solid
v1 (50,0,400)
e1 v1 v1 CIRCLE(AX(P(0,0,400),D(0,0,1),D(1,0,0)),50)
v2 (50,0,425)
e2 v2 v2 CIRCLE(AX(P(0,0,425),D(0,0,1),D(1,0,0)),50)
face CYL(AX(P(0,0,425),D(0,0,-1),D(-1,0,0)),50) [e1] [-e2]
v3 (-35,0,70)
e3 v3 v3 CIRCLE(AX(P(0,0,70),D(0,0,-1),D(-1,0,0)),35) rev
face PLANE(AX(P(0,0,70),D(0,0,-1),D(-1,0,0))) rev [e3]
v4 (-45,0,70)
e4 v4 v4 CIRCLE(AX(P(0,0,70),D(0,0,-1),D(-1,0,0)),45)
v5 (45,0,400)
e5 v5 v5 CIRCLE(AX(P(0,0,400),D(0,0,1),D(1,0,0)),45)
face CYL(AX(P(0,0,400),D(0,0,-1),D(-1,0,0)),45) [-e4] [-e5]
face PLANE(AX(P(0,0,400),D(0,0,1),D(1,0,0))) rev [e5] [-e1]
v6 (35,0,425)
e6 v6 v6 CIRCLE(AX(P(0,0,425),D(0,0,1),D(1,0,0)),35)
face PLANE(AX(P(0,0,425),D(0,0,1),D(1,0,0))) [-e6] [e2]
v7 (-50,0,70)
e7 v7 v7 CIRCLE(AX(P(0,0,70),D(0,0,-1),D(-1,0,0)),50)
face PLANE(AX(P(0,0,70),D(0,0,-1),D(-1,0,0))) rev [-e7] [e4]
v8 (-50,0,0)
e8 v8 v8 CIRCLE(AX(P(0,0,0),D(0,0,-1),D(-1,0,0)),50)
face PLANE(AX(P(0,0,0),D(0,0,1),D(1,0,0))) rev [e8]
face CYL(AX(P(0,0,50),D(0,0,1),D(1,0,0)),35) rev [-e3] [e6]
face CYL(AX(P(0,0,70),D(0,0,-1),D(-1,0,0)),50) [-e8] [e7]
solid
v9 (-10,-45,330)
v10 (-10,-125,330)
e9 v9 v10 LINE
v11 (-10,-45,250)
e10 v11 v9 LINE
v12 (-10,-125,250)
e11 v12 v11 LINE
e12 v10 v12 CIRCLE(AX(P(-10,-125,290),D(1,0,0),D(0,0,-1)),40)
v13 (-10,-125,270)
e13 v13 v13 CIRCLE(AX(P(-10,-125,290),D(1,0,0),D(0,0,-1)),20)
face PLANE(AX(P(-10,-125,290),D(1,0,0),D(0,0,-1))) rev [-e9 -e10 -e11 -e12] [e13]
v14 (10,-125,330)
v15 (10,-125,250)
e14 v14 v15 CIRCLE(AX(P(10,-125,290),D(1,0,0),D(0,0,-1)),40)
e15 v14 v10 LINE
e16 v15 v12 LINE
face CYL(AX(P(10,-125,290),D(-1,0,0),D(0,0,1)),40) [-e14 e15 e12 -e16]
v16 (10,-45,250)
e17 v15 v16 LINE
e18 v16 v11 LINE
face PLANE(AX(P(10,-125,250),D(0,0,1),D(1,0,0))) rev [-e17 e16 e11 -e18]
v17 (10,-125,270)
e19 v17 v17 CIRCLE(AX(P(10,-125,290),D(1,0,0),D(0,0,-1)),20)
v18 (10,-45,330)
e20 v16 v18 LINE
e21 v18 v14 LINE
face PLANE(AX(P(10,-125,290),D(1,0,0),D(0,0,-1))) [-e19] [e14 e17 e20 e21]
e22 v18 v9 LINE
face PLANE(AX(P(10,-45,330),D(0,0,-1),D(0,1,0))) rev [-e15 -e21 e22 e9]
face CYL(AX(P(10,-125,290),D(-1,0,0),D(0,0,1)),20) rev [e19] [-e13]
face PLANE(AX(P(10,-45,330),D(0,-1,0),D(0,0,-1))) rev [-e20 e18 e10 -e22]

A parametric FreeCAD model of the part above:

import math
import FreeCAD as App
import Part
import Sketcher

doc = App.newDocument("Part")
body = doc.addObject("PartDesign::Body", "Body")

# Sketch on XY plane
sketch1 = body.newObject("Sketcher::SketchObject", "Sketch")
sketch1.AttachmentSupport = (doc.getObject("XY_Plane"), [""])
sketch1.MapMode = "FlatFace"
sketch1.addGeometry(Part.Circle(App.Vector(0, 0, 0), App.Vector(0, 0, 1), 45), False)
sketch1.addConstraint(Sketcher.Constraint("Coincident", 0, 3, -1, 1))
sketch1.addConstraint(Sketcher.Constraint("Diameter", 0, 90.0))
pad1 = body.newObject("PartDesign::Pad", "Pad")
pad1.Profile = sketch1
pad1.Length = 400

# Sketch on XY plane
sketch2 = body.newObject("Sketcher::SketchObject", "Sketch001")
sketch2.AttachmentSupport = (doc.getObject("XY_Plane"), [""])
sketch2.MapMode = "FlatFace"
sketch2.AttachmentOffset = App.Placement(App.Vector(0, 0, 400), App.Rotation())
sketch2.addGeometry(Part.Circle(App.Vector(0, 0, 0), App.Vector(0, 0, 1), 35), False)
sketch2.addConstraint(Sketcher.Constraint("Coincident", 0, 3, -1, 1))
sketch2.addConstraint(Sketcher.Constraint("Diameter", 0, 70.0))
pocket1 = body.newObject("PartDesign::Pocket", "Pocket")
pocket1.Profile = sketch2
pocket1.Length = 350

# Sketch on XY plane
sketch3 = body.newObject("Sketcher::SketchObject", "Sketch002")
sketch3.AttachmentSupport = (doc.getObject("XY_Plane"), [""])
sketch3.MapMode = "FlatFace"
sketch3.addGeometry(Part.Circle(App.Vector(0, 0, 0), App.Vector(0, 0, 1), 50), False)
sketch3.addConstraint(Sketcher.Constraint("Coincident", 0, 3, -1, 1))
sketch3.addConstraint(Sketcher.Constraint("Diameter", 0, 100.0))
pad2 = body.newObject("PartDesign::Pad", "Pad001")
pad2.Profile = sketch3
pad2.Length = 70

# Sketch on XY plane
sketch4 = body.newObject("Sketcher::SketchObject", "Sketch003")
sketch4.AttachmentSupport = (doc.getObject("XY_Plane"), [""])
sketch4.MapMode = "FlatFace"
sketch4.AttachmentOffset = App.Placement(App.Vector(0, 0, 400), App.Rotation())
sketch4.addGeometry(Part.Circle(App.Vector(0, 0, 0), App.Vector(0, 0, 1), 50), False)
sketch4.addGeometry(Part.Circle(App.Vector(0, 0, 0), App.Vector(0, 0, 1), 35), False)
sketch4.addConstraint(Sketcher.Constraint("Coincident", 0, 3, -1, 1))
sketch4.addConstraint(Sketcher.Constraint("Coincident", 1, 3, -1, 1))
sketch4.addConstraint(Sketcher.Constraint("Diameter", 0, 100.0))
sketch4.addConstraint(Sketcher.Constraint("Diameter", 1, 70.0))
pad3 = body.newObject("PartDesign::Pad", "Pad002")
pad3.Profile = sketch4
pad3.Length = 25
body2 = doc.addObject("PartDesign::Body", "Body001")

# Sketch on YZ plane
sketch5 = body2.newObject("Sketcher::SketchObject", "Sketch004")
sketch5.AttachmentSupport = (doc.getObject("YZ_Plane001"), [""])
sketch5.MapMode = "FlatFace"
sketch5.addGeometry(Part.LineSegment(App.Vector(-45, 330, 0), App.Vector(-125, 330, 0)), False)
sketch5.addGeometry(Part.ArcOfCircle(Part.Circle(App.Vector(-125, 290, 0), App.Vector(0, 0, 1), 40), math.radians(90), math.radians(270)), False)
sketch5.addGeometry(Part.LineSegment(App.Vector(-125, 250, 0), App.Vector(-45, 250, 0)), False)
sketch5.addGeometry(Part.LineSegment(App.Vector(-45, 250, 0), App.Vector(-45, 330, 0)), False)
sketch5.addGeometry(Part.Circle(App.Vector(-125, 290, 0), App.Vector(0, 0, 1), 20), False)
sketch5.addConstraint(Sketcher.Constraint("Tangent", 0, 2, 1, 1))
sketch5.addConstraint(Sketcher.Constraint("Tangent", 1, 2, 2, 1))
sketch5.addConstraint(Sketcher.Constraint("Coincident", 2, 2, 3, 1))
sketch5.addConstraint(Sketcher.Constraint("Coincident", 3, 2, 0, 1))
sketch5.addConstraint(Sketcher.Constraint("Horizontal", 0))
sketch5.addConstraint(Sketcher.Constraint("Horizontal", 2))
sketch5.addConstraint(Sketcher.Constraint("Vertical", 3))
sketch5.addConstraint(Sketcher.Constraint("Coincident", 4, 3, 1, 3))
sketch5.addConstraint(Sketcher.Constraint("Equal", 2, 3))
sketch5.addConstraint(Sketcher.Constraint("Diameter", 4, 40.0))
sketch5.addConstraint(Sketcher.Constraint("Radius", 1, 40.0))
sketch5.addConstraint(Sketcher.Constraint("DistanceX", 1, 3, -1, 1, 125.0))
sketch5.addConstraint(Sketcher.Constraint("DistanceY", -1, 1, 1, 3, 290.0))
pad4 = body2.newObject("PartDesign::Pad", "Pad003")
pad4.Profile = sketch5
pad4.Length = 20
pad4.Midplane = True

doc.recompute()
